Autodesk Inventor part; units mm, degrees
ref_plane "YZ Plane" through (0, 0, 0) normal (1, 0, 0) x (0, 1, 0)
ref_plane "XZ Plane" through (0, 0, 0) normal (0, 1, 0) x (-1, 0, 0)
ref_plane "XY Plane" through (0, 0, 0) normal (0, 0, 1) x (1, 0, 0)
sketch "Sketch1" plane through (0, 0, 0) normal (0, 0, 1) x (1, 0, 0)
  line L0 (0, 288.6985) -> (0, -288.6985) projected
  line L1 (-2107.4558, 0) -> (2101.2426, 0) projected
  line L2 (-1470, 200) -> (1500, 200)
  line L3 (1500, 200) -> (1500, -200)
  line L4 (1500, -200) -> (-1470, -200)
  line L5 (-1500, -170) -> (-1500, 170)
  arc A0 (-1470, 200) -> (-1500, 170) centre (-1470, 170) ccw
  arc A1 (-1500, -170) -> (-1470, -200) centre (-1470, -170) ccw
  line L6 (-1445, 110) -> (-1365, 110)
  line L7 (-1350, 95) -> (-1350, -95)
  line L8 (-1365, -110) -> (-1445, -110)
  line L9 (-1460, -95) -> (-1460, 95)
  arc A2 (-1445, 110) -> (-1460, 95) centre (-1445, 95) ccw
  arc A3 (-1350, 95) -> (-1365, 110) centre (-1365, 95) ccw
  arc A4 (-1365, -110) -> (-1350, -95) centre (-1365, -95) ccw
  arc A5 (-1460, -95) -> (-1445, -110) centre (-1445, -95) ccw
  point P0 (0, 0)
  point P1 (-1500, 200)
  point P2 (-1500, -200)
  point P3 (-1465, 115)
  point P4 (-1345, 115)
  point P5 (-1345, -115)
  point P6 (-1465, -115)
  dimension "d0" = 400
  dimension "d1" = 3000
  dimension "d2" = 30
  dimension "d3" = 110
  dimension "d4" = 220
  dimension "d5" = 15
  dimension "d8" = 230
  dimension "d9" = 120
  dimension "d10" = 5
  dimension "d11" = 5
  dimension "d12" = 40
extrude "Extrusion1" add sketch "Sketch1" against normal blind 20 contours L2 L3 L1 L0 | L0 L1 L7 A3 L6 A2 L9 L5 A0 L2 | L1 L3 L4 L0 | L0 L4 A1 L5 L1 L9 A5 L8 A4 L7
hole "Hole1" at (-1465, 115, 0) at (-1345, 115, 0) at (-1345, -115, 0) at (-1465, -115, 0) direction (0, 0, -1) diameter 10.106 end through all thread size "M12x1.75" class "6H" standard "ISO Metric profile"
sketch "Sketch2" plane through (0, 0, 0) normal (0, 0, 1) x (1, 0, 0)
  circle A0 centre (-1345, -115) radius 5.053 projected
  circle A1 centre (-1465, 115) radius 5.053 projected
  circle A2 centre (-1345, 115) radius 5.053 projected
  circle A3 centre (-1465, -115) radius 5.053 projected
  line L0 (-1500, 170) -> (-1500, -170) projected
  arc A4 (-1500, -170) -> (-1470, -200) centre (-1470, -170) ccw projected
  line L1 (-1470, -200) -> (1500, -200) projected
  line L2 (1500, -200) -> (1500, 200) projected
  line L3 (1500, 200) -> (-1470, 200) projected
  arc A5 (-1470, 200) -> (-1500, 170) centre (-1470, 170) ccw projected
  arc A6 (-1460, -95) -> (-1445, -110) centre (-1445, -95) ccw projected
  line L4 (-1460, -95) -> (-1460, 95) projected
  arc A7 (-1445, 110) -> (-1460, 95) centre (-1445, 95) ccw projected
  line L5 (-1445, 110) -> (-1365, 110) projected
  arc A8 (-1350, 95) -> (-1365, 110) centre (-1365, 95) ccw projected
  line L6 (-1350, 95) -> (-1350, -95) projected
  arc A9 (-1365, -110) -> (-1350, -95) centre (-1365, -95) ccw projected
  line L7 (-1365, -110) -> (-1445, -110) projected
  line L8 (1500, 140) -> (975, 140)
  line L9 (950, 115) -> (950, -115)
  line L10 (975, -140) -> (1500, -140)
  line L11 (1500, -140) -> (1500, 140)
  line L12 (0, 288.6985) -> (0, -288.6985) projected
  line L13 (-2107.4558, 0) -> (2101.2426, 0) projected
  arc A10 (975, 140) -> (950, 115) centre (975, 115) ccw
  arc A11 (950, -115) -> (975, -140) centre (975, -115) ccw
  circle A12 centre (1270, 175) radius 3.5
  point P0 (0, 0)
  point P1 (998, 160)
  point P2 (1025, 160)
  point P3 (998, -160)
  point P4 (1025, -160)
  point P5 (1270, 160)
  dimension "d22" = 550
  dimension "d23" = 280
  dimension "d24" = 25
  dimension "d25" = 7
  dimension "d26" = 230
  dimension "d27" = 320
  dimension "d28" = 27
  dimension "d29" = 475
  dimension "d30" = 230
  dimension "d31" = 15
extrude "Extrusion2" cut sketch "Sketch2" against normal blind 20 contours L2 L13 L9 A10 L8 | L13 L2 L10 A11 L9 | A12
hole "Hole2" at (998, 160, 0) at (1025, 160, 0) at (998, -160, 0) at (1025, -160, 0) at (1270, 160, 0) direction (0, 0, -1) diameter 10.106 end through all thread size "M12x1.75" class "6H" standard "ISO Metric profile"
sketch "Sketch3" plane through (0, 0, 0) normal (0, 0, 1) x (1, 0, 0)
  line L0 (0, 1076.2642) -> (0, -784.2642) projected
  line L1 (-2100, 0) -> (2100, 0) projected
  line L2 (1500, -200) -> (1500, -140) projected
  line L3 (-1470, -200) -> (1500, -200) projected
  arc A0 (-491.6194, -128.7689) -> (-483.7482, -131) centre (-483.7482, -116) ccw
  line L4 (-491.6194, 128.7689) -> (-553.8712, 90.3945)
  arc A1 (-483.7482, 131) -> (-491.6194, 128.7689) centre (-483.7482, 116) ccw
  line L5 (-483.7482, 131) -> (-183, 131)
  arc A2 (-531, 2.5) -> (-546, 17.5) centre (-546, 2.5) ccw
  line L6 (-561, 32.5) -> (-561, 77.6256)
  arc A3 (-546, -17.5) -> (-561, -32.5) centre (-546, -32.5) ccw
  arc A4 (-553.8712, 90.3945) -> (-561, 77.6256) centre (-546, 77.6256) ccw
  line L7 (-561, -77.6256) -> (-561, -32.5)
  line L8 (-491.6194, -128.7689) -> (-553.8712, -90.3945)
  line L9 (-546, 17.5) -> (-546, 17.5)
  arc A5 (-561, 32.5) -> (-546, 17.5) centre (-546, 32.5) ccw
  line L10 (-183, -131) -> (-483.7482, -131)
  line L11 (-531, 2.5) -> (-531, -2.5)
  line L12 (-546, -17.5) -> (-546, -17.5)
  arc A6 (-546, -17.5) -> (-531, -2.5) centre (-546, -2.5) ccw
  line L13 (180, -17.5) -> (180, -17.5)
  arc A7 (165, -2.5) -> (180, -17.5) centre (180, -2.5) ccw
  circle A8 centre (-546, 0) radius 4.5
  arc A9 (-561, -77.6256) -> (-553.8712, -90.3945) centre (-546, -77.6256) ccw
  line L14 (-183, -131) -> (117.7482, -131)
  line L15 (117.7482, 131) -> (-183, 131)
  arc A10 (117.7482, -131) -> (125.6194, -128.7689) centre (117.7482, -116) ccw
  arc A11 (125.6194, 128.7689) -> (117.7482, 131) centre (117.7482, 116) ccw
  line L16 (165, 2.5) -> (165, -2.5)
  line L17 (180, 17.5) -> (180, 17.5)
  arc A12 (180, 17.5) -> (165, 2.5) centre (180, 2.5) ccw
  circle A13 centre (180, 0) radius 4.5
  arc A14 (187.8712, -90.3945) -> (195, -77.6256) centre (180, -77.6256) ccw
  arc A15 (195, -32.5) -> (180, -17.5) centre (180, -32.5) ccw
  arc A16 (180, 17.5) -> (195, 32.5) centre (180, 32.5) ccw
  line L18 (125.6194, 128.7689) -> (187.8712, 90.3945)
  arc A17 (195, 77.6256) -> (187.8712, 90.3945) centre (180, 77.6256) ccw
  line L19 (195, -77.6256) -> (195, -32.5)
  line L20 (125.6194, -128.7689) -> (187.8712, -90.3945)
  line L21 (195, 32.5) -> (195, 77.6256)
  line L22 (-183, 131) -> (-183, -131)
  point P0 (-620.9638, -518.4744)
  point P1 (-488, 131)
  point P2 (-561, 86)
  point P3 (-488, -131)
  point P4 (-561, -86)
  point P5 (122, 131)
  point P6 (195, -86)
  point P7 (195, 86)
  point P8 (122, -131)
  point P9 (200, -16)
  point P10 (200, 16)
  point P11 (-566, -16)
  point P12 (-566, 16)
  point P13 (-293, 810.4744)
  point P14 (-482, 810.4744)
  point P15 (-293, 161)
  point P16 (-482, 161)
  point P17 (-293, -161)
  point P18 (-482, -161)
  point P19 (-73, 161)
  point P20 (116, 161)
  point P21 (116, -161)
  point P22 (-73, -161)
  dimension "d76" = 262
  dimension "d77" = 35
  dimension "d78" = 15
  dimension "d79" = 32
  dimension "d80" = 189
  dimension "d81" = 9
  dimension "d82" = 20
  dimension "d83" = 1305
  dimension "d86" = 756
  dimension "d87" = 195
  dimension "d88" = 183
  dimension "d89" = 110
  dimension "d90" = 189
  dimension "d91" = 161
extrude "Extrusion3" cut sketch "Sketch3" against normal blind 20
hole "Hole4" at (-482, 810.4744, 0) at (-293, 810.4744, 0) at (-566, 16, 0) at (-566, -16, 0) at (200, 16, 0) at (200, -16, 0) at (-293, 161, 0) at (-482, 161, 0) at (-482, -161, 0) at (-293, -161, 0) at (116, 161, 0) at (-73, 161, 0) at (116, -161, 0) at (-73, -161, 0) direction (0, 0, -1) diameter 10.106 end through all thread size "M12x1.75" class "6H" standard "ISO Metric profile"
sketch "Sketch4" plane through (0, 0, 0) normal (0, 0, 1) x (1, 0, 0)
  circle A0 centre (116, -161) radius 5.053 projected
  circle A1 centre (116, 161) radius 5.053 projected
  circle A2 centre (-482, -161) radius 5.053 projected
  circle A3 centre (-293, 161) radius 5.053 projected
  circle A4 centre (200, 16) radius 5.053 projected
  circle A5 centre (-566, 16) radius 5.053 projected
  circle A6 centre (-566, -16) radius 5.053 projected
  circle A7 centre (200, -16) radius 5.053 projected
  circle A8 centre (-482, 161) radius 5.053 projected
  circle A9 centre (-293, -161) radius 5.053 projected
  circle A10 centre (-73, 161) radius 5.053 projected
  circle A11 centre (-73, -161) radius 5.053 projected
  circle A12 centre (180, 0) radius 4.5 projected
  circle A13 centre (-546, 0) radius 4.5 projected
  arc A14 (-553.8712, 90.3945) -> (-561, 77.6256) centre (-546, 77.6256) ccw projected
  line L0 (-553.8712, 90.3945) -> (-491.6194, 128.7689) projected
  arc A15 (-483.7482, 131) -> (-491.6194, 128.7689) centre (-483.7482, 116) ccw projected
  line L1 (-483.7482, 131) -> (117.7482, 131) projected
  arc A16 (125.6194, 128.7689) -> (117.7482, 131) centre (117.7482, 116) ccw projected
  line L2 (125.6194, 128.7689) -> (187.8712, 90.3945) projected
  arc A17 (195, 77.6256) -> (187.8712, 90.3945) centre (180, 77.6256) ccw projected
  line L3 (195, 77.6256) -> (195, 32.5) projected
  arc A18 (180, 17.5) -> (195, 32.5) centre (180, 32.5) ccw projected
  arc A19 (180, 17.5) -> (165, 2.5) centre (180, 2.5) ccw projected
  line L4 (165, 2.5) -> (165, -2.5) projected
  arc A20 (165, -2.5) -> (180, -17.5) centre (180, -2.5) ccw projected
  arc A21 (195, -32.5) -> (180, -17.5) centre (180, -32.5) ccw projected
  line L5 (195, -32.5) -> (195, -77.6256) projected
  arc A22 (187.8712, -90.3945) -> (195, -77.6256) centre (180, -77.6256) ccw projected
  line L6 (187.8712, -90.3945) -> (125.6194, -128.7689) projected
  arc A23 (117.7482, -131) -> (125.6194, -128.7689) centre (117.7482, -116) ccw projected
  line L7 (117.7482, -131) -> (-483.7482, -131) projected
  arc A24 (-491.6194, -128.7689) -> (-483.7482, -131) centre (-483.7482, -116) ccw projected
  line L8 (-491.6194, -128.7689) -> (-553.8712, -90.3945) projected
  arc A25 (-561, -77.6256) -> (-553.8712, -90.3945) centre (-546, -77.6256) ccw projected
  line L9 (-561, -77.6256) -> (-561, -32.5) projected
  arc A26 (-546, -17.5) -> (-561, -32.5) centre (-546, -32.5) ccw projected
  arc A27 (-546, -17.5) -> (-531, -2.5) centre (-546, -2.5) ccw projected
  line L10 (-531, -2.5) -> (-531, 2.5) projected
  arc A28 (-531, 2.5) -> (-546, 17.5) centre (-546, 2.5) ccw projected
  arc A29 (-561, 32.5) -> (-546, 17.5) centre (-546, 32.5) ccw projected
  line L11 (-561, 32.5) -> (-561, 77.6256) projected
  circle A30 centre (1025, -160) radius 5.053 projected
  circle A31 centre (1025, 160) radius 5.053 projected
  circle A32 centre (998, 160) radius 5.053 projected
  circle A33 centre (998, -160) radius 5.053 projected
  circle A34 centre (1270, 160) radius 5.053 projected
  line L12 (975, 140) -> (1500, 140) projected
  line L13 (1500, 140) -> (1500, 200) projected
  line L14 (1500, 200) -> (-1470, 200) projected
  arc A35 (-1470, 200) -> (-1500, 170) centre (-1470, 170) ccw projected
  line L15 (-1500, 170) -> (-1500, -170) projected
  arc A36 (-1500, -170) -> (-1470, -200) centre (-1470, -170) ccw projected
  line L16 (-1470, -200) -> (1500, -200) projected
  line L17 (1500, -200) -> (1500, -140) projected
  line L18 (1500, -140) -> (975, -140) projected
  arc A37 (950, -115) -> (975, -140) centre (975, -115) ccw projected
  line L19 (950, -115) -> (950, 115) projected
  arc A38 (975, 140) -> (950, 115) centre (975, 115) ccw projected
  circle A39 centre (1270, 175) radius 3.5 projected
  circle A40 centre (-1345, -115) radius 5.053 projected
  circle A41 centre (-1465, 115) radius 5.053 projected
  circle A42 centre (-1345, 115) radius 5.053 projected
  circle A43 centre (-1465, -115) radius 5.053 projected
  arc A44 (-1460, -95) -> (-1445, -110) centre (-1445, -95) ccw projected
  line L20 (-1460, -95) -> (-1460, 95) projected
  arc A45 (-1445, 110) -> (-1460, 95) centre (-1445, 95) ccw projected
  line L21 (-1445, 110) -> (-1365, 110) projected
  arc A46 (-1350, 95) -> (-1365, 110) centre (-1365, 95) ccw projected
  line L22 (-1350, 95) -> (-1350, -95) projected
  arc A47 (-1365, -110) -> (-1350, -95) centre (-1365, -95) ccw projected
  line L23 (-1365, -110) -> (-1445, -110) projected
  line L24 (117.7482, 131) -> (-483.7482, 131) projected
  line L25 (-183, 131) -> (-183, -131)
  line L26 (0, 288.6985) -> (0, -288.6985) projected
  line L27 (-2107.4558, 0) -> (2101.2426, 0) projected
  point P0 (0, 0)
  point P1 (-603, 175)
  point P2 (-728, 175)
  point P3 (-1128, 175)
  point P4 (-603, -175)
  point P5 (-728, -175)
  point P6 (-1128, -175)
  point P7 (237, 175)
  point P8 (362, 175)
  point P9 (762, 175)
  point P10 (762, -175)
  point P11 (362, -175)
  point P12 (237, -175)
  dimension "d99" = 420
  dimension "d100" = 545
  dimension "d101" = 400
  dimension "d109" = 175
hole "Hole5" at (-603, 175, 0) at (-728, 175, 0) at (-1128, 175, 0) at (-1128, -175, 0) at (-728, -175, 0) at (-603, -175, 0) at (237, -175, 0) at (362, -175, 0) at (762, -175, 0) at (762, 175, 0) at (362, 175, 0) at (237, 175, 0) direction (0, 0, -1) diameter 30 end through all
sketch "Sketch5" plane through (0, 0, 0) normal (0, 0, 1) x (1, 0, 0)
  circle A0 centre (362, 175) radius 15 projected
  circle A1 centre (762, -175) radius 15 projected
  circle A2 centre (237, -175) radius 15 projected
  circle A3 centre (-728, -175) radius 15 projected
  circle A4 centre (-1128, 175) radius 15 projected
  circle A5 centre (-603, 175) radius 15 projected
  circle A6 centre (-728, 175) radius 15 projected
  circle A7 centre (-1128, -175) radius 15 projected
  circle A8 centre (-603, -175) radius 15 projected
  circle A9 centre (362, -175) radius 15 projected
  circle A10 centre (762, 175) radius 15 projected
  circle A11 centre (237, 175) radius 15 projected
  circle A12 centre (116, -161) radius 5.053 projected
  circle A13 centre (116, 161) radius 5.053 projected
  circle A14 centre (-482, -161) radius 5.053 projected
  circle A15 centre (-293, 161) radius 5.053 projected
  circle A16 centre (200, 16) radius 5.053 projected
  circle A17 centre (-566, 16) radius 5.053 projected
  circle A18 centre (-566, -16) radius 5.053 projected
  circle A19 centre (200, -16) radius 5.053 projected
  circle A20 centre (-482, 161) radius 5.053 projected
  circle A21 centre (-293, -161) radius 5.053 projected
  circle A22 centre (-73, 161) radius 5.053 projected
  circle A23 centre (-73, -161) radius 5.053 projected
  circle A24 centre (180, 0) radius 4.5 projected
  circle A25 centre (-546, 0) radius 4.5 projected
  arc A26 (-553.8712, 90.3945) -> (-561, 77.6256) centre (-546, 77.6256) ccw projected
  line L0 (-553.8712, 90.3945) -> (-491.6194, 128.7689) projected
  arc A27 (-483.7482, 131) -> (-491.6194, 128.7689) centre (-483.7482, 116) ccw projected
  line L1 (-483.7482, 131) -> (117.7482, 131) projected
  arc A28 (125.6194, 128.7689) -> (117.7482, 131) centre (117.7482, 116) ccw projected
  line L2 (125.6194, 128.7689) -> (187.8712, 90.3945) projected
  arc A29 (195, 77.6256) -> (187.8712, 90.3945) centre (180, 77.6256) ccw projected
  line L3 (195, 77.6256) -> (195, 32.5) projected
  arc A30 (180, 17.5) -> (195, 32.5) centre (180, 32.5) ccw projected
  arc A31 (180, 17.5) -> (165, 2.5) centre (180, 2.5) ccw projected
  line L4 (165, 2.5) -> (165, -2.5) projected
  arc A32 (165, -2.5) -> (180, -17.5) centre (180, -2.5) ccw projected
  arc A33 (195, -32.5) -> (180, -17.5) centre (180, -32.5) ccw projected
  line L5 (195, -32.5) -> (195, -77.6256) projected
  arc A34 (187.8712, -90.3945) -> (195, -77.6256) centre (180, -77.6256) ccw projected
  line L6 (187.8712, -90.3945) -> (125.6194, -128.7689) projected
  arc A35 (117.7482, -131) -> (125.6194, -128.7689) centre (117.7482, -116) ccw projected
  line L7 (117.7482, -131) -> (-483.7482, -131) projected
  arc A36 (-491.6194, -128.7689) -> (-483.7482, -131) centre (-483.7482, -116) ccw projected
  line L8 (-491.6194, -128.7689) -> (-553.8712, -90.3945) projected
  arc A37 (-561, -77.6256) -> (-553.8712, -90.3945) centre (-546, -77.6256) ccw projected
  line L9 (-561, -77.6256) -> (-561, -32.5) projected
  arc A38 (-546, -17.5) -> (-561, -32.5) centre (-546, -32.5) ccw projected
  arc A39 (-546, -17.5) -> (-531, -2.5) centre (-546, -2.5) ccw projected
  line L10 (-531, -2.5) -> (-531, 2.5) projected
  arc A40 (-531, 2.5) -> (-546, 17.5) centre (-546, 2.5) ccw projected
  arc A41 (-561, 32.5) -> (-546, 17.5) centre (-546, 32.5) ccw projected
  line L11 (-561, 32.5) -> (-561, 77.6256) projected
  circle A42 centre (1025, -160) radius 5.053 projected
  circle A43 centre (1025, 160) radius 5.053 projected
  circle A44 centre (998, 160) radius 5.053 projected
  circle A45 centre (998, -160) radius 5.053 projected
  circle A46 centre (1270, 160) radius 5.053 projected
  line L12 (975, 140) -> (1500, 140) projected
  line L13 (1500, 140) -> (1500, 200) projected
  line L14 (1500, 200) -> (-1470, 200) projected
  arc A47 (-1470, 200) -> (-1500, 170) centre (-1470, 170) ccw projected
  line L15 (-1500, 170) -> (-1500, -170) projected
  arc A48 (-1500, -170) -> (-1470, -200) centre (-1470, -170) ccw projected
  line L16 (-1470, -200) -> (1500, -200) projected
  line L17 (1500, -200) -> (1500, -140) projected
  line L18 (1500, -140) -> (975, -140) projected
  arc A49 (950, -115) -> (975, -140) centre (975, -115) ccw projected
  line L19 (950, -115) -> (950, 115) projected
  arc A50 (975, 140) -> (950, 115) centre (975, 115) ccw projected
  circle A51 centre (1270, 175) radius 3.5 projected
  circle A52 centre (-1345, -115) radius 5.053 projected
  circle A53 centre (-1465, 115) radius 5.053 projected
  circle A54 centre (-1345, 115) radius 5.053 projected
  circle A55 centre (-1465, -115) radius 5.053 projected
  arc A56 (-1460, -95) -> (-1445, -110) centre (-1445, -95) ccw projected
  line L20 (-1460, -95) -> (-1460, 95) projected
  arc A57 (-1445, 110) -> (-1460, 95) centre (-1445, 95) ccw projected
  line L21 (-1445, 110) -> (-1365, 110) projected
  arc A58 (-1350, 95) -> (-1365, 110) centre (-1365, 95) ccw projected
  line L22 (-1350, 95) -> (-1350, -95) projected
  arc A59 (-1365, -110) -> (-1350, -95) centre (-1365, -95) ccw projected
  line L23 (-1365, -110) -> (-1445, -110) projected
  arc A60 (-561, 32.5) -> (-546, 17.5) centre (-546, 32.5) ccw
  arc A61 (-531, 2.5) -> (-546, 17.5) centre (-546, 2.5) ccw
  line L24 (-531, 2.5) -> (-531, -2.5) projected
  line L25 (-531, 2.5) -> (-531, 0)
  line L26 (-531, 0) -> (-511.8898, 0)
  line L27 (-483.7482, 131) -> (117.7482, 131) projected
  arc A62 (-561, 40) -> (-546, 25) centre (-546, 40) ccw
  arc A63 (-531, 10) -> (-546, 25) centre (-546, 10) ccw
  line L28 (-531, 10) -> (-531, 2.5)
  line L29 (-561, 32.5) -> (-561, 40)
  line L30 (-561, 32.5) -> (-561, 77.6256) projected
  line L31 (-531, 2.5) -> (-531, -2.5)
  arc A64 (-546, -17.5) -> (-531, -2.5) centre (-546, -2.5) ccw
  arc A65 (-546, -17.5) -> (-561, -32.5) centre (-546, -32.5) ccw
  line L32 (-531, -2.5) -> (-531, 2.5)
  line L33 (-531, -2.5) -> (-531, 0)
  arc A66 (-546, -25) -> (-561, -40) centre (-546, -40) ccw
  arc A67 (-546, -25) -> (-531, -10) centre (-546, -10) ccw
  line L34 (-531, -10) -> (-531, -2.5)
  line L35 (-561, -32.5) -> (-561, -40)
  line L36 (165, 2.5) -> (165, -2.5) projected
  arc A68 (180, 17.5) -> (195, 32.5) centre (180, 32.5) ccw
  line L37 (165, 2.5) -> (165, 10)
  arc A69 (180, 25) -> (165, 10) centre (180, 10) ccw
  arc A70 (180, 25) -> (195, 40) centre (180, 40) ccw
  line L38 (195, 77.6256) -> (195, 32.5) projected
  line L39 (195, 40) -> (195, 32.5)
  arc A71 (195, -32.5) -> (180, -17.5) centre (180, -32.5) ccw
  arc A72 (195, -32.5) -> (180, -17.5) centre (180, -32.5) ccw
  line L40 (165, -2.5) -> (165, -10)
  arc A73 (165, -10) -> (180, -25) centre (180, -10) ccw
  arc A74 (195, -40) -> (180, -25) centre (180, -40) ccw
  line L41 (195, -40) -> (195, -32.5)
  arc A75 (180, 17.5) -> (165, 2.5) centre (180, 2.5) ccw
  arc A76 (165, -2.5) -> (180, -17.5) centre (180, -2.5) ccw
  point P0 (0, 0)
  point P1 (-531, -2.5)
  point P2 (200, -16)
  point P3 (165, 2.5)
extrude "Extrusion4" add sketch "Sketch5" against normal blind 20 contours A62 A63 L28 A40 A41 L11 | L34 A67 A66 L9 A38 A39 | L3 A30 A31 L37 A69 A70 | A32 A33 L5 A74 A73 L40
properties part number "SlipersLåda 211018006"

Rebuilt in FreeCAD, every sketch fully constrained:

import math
import FreeCAD as App
import Part
import Sketcher

doc = App.newDocument("Part")
params = doc.addObject("Spreadsheet::Sheet", "Params")
for row, (alias, value) in enumerate([
    ("sketch1_radius", "30 mm"),
    ("sketch1_radius2", "15 mm"),
    ("sketch1_height", "400 mm"),
    ("sketch1_width", "2970 mm"),
    ("pad1_length", "20 mm"),
    ("hole_diameter", "10.106 mm"),
    ("sketch3_diameter", "7 mm"),
    ("sketch3_radius", "25 mm"),
    ("sketch3_height", "230 mm"),
    ("pocket1_length", "20 mm"),
    ("hole2_diameter", "10.106 mm"),
    ("sketch5_diameter", "9 mm"),
    ("sketch5_radius", "15 mm"),
    ("pocket2_length", "20 mm"),
    ("hole3_diameter", "10.106 mm"),
    ("sketch7_diameter", "30 mm"),
    ("hole4_diameter", "30 mm"),
    ("sketch8_radius", "15 mm"),
    ("sketch8_height", "7.5 mm"),
    ("pad2_length", "20 mm"),
], start=1):
    params.set(f"A{row}", alias)
    params.set(f"B{row}", "=" + value)
    params.setAlias(f"B{row}", alias)

body = doc.addObject("PartDesign::Body", "Body")

# Sketch on XY plane
sketch1 = doc.addObject("Sketcher::SketchObject", "Sketch")
body.addObject(sketch1)
sketch1.AttachmentSupport = (doc.XY_Plane, [""])
sketch1.MapMode = "FlatFace"
sketch1.addGeometry([
    Part.LineSegment(App.Vector(1500, 200, 0), App.Vector(-1470, 200, 0)),  # 0
    Part.ArcOfCircle(Part.Circle(App.Vector(-1470, 170, 0), App.Vector(0, 0, 1), 30), math.radians(90), math.radians(180)),  # 1
    Part.LineSegment(App.Vector(-1500, 170, 0), App.Vector(-1500, -170, 0)),  # 2
    Part.ArcOfCircle(Part.Circle(App.Vector(-1470, -170, 0), App.Vector(0, 0, 1), 30), math.radians(180), math.radians(270)),  # 3
    Part.LineSegment(App.Vector(-1470, -200, 0), App.Vector(1500, -200, 0)),  # 4
    Part.LineSegment(App.Vector(1500, -200, 0), App.Vector(1500, 200, 0)),  # 5
    Part.LineSegment(App.Vector(-1350, 95, 0), App.Vector(-1350, -95, 0)),  # 6
    Part.ArcOfCircle(Part.Circle(App.Vector(-1365, -95, 0), App.Vector(0, 0, 1), 15), math.radians(-90), math.radians(0)),  # 7
    Part.LineSegment(App.Vector(-1365, -110, 0), App.Vector(-1445, -110, 0)),  # 8
    Part.ArcOfCircle(Part.Circle(App.Vector(-1445, -95, 0), App.Vector(0, 0, 1), 15), math.radians(180), math.radians(270)),  # 9
    Part.LineSegment(App.Vector(-1460, -95, 0), App.Vector(-1460, 95, 0)),  # 10
    Part.ArcOfCircle(Part.Circle(App.Vector(-1445, 95, 0), App.Vector(0, 0, 1), 15), math.radians(90), math.radians(180)),  # 11
    Part.LineSegment(App.Vector(-1445, 110, 0), App.Vector(-1365, 110, 0)),  # 12
    Part.ArcOfCircle(Part.Circle(App.Vector(-1365, 95, 0), App.Vector(0, 0, 1), 15), math.radians(0), math.radians(90)),  # 13
], False)
sketch1.addConstraint([
    Sketcher.Constraint("Tangent", 0, 2, 1, 1),
    Sketcher.Constraint("Tangent", 1, 2, 2, 1),
    Sketcher.Constraint("Tangent", 2, 2, 3, 1),
    Sketcher.Constraint("Tangent", 3, 2, 4, 1),
    Sketcher.Constraint("Coincident", 4, 2, 5, 1),
    Sketcher.Constraint("Coincident", 5, 2, 0, 1),
    Sketcher.Constraint("Tangent", 6, 2, 7, 2),
    Sketcher.Constraint("Tangent", 7, 1, 8, 1),
    Sketcher.Constraint("Tangent", 8, 2, 9, 2),
    Sketcher.Constraint("Tangent", 9, 1, 10, 1),
    Sketcher.Constraint("Tangent", 10, 2, 11, 2),
    Sketcher.Constraint("Tangent", 11, 1, 12, 1),
    Sketcher.Constraint("Tangent", 12, 2, 13, 2),
    Sketcher.Constraint("Tangent", 13, 1, 6, 1),
    Sketcher.Constraint("Horizontal", 0),
    Sketcher.Constraint("Vertical", 2),
    Sketcher.Constraint("Horizontal", 4),
    Sketcher.Constraint("Vertical", 5),
    Sketcher.Constraint("Vertical", 6),
    Sketcher.Constraint("Horizontal", 8),
    Sketcher.Constraint("Vertical", 10),
    Sketcher.Constraint("Horizontal", 12),
    Sketcher.Constraint("Equal", 1, 3),
    Sketcher.Constraint("Equal", 7, 9),
    Sketcher.Constraint("Equal", 9, 11),
    Sketcher.Constraint("Equal", 11, 13),
    Sketcher.Constraint("Radius", 1, 30.0),
    Sketcher.Constraint("Radius", 7, 15.0),
    Sketcher.Constraint("DistanceY", 5, 1, 5, 2, 400.0),
    Sketcher.Constraint("DistanceY", 7, 1, -1, 1, 110.0),
    Sketcher.Constraint("DistanceY", -1, 1, 11, 1, 110.0),
    Sketcher.Constraint("DistanceX", 3, 3, 6, 2, 120.0),
    Sketcher.Constraint("DistanceX", 2, 2, 9, 1, 40.0),
    Sketcher.Constraint("DistanceX", 0, 2, 0, 1, 2970.0),
    Sketcher.Constraint("DistanceX", 1, 3, -1, 1, 1470.0),
    Sketcher.Constraint("DistanceY", -1, 1, 1, 3, 170.0),
])
sketch1.setExpression("Constraints[26]", "Params.sketch1_radius")
sketch1.setExpression("Constraints[27]", "Params.sketch1_radius2")
sketch1.setExpression("Constraints[28]", "Params.sketch1_height")
sketch1.setExpression("Constraints[33]", "Params.sketch1_width")
pad1 = doc.addObject("PartDesign::Pad", "Pad")
body.addObject(pad1)
pad1.Profile = sketch1
pad1.setExpression("Length", "Params.pad1_length")
pad1.Reversed = True

# Sketch on XY plane
sketch2 = doc.addObject("Sketcher::SketchObject", "Sketch001")
body.addObject(sketch2)
sketch2.AttachmentSupport = (doc.XY_Plane, [""])
sketch2.MapMode = "FlatFace"
sketch2.addGeometry([
    Part.Circle(App.Vector(-1465, 115, 0), App.Vector(0, 0, 1), 5),
    Part.Circle(App.Vector(-1345, 115, 0), App.Vector(0, 0, 1), 5),
    Part.Circle(App.Vector(-1345, -115, 0), App.Vector(0, 0, 1), 5),
    Part.Circle(App.Vector(-1465, -115, 0), App.Vector(0, 0, 1), 5),
], False)
sketch2.addConstraint([
    Sketcher.Constraint("Equal", 0, 1),
    Sketcher.Constraint("Equal", 1, 2),
    Sketcher.Constraint("Equal", 2, 3),
    Sketcher.Constraint("Symmetric", 1, 3, 2, 3, -1),
    Sketcher.Constraint("Symmetric", 0, 3, 3, 3, -1),
    Sketcher.Constraint("Horizontal", 0, 3, 1, 3),
    Sketcher.Constraint("Diameter", 0, 10.106),
    Sketcher.Constraint("DistanceX", 0, 3, -1, 1, 1465.0),
    Sketcher.Constraint("DistanceY", -1, 1, 0, 3, 115.0),
    Sketcher.Constraint("DistanceX", 1, 3, -1, 1, 1345.0),
])
doc.recompute()
hole = doc.addObject("PartDesign::Hole", "Hole")
body.addObject(hole)
hole.Profile = sketch2
hole.ThreadType = "None"
hole.setExpression("Diameter", "Params.hole_diameter")
hole.DepthType = "ThroughAll"

# Sketch on XY plane
sketch3 = doc.addObject("Sketcher::SketchObject", "Sketch002")
body.addObject(sketch3)
sketch3.AttachmentSupport = (doc.XY_Plane, [""])
sketch3.MapMode = "FlatFace"
sketch3.addGeometry([
    Part.LineSegment(App.Vector(1500, 140, 0), App.Vector(975, 140, 0)),  # 0
    Part.ArcOfCircle(Part.Circle(App.Vector(975, 115, 0), App.Vector(0, 0, 1), 25), math.radians(90), math.radians(180)),  # 1
    Part.LineSegment(App.Vector(950, 115, 0), App.Vector(950, -115, 0)),  # 2
    Part.ArcOfCircle(Part.Circle(App.Vector(975, -115, 0), App.Vector(0, 0, 1), 25), math.radians(180), math.radians(270)),  # 3
    Part.LineSegment(App.Vector(975, -140, 0), App.Vector(1500, -140, 0)),  # 4
    Part.LineSegment(App.Vector(1500, -140, 0), App.Vector(1500, 140, 0)),  # 5
    Part.Circle(App.Vector(1270, 175, 0), App.Vector(0, 0, 1), 3.5),  # 6
], False)
sketch3.addConstraint([
    Sketcher.Constraint("Tangent", 0, 2, 1, 1),
    Sketcher.Constraint("Tangent", 1, 2, 2, 1),
    Sketcher.Constraint("Tangent", 2, 2, 3, 1),
    Sketcher.Constraint("Tangent", 3, 2, 4, 1),
    Sketcher.Constraint("Coincident", 4, 2, 5, 1),
    Sketcher.Constraint("Coincident", 5, 2, 0, 1),
    Sketcher.Constraint("Horizontal", 0),
    Sketcher.Constraint("Vertical", 2),
    Sketcher.Constraint("Horizontal", 4),
    Sketcher.Constraint("Vertical", 5),
    Sketcher.Constraint("Equal", 1, 3),
    Sketcher.Constraint("Diameter", 6, 7.0),
    Sketcher.Constraint("Radius", 1, 25.0),
    Sketcher.Constraint("DistanceY", 2, 2, 2, 1, 230.0),
    Sketcher.Constraint("DistanceX", 1, 2, 6, 3, 320.0),
    Sketcher.Constraint("DistanceX", 6, 3, 4, 2, 230.0),
    Sketcher.Constraint("DistanceX", -1, 1, 1, 3, 975.0),
    Sketcher.Constraint("DistanceY", -1, 1, 1, 3, 115.0),
    Sketcher.Constraint("DistanceY", -1, 1, 6, 3, 175.0),
])
sketch3.setExpression("Constraints[11]", "Params.sketch3_diameter")
sketch3.setExpression("Constraints[12]", "Params.sketch3_radius")
sketch3.setExpression("Constraints[13]", "Params.sketch3_height")
pocket1 = doc.addObject("PartDesign::Pocket", "Pocket")
body.addObject(pocket1)
pocket1.Profile = sketch3
pocket1.setExpression("Length", "Params.pocket1_length")

# Sketch on XY plane
sketch4 = doc.addObject("Sketcher::SketchObject", "Sketch003")
body.addObject(sketch4)
sketch4.AttachmentSupport = (doc.XY_Plane, [""])
sketch4.MapMode = "FlatFace"
sketch4.addGeometry([
    Part.Circle(App.Vector(998, 160, 0), App.Vector(0, 0, 1), 5),  # 0
    Part.Circle(App.Vector(1025, 160, 0), App.Vector(0, 0, 1), 5),  # 1
    Part.Circle(App.Vector(998, -160, 0), App.Vector(0, 0, 1), 5),  # 2
    Part.Circle(App.Vector(1025, -160, 0), App.Vector(0, 0, 1), 5),  # 3
    Part.Circle(App.Vector(1270, 160, 0), App.Vector(0, 0, 1), 5),  # 4
], False)
sketch4.addConstraint([
    Sketcher.Constraint("Equal", 0, 1),
    Sketcher.Constraint("Equal", 1, 2),
    Sketcher.Constraint("Equal", 2, 3),
    Sketcher.Constraint("Equal", 3, 4),
    Sketcher.Constraint("Symmetric", 0, 3, 2, 3, -1),
    Sketcher.Constraint("Symmetric", 1, 3, 3, 3, -1),
    Sketcher.Constraint("Horizontal", 0, 3, 1, 3),
    Sketcher.Constraint("Horizontal", 1, 3, 4, 3),
    Sketcher.Constraint("Diameter", 0, 10.106),
    Sketcher.Constraint("DistanceX", -1, 1, 0, 3, 998.0),
    Sketcher.Constraint("DistanceY", -1, 1, 0, 3, 160.0),
    Sketcher.Constraint("DistanceX", -1, 1, 1, 3, 1025.0),
    Sketcher.Constraint("DistanceX", -1, 1, 4, 3, 1270.0),
])
doc.recompute()
hole2 = doc.addObject("PartDesign::Hole", "Hole001")
body.addObject(hole2)
hole2.Profile = sketch4
hole2.ThreadType = "None"
hole2.setExpression("Diameter", "Params.hole2_diameter")
hole2.DepthType = "ThroughAll"

# Sketch on XY plane
sketch5 = doc.addObject("Sketcher::SketchObject", "Sketch004")
body.addObject(sketch5)
sketch5.AttachmentSupport = (doc.XY_Plane, [""])
sketch5.MapMode = "FlatFace"
sketch5.addGeometry([
    Part.LineSegment(App.Vector(117.7, 131, 0), App.Vector(-483.7, 131, 0)),  # 0
    Part.ArcOfCircle(Part.Circle(App.Vector(-483.7, 116, 0), App.Vector(0, 0, 1), 15), math.radians(90), math.radians(122)),  # 1
    Part.LineSegment(App.Vector(-491.6, 128.8, 0), App.Vector(-553.9, 90.4, 0)),  # 2
    Part.ArcOfCircle(Part.Circle(App.Vector(-546, 77.6, 0), App.Vector(0, 0, 1), 15), math.radians(122), math.radians(180)),  # 3
    Part.LineSegment(App.Vector(-561, 77.6, 0), App.Vector(-561, 32.5, 0)),  # 4
    Part.ArcOfCircle(Part.Circle(App.Vector(-546, 32.5, 0), App.Vector(0, 0, 1), 15), math.radians(180), math.radians(270)),  # 5
    Part.ArcOfCircle(Part.Circle(App.Vector(-546, 2.5, 0), App.Vector(0, 0, 1), 15), math.radians(0), math.radians(90)),  # 6
    Part.LineSegment(App.Vector(-531, 2.5, 0), App.Vector(-531, -2.5, 0)),  # 7
    Part.ArcOfCircle(Part.Circle(App.Vector(-546, -2.5, 0), App.Vector(0, 0, 1), 15), math.radians(-90), math.radians(0)),  # 8
    Part.ArcOfCircle(Part.Circle(App.Vector(-546, -32.5, 0), App.Vector(0, 0, 1), 15), math.radians(90), math.radians(180)),  # 9
    Part.LineSegment(App.Vector(-561, -32.5, 0), App.Vector(-561, -77.6, 0)),  # 10
    Part.ArcOfCircle(Part.Circle(App.Vector(-546, -77.6, 0), App.Vector(0, 0, 1), 15), math.radians(180), math.radians(238)),  # 11
    Part.LineSegment(App.Vector(-553.9, -90.4, 0), App.Vector(-491.6, -128.8, 0)),  # 12
    Part.ArcOfCircle(Part.Circle(App.Vector(-483.7, -116, 0), App.Vector(0, 0, 1), 15), math.radians(-122), math.radians(-90)),  # 13
    Part.LineSegment(App.Vector(-483.7, -131, 0), App.Vector(117.7, -131, 0)),  # 14
    Part.ArcOfCircle(Part.Circle(App.Vector(117.7, -116, 0), App.Vector(0, 0, 1), 15), math.radians(-90), math.radians(-58)),  # 15
    Part.LineSegment(App.Vector(125.6, -128.8, 0), App.Vector(187.9, -90.4, 0)),  # 16
    Part.ArcOfCircle(Part.Circle(App.Vector(180, -77.6, 0), App.Vector(0, 0, 1), 15), math.radians(-58), math.radians(0)),  # 17
    Part.LineSegment(App.Vector(195, -77.6, 0), App.Vector(195, -32.5, 0)),  # 18
    Part.ArcOfCircle(Part.Circle(App.Vector(180, -32.5, 0), App.Vector(0, 0, 1), 15), math.radians(0), math.radians(90)),  # 19
    Part.ArcOfCircle(Part.Circle(App.Vector(180, -2.5, 0), App.Vector(0, 0, 1), 15), math.radians(180), math.radians(270)),  # 20
    Part.LineSegment(App.Vector(165, -2.5, 0), App.Vector(165, 2.5, 0)),  # 21
    Part.ArcOfCircle(Part.Circle(App.Vector(180, 2.5, 0), App.Vector(0, 0, 1), 15), math.radians(90), math.radians(180)),  # 22
    Part.ArcOfCircle(Part.Circle(App.Vector(180, 32.5, 0), App.Vector(0, 0, 1), 15), math.radians(-90), math.radians(0)),  # 23
    Part.LineSegment(App.Vector(195, 32.5, 0), App.Vector(195, 77.6, 0)),  # 24
    Part.ArcOfCircle(Part.Circle(App.Vector(180, 77.6, 0), App.Vector(0, 0, 1), 15), math.radians(0), math.radians(58)),  # 25
    Part.LineSegment(App.Vector(187.9, 90.4, 0), App.Vector(125.6, 128.8, 0)),  # 26
    Part.ArcOfCircle(Part.Circle(App.Vector(117.7, 116, 0), App.Vector(0, 0, 1), 15), math.radians(58), math.radians(90)),  # 27
    Part.Circle(App.Vector(180, 0, 0), App.Vector(0, 0, 1), 4.5),  # 28
    Part.Circle(App.Vector(-546, 0, 0), App.Vector(0, 0, 1), 4.5),  # 29
], False)
sketch5.addConstraint([
    Sketcher.Constraint("Tangent", 0, 2, 1, 1),
    Sketcher.Constraint("Tangent", 1, 2, 2, 1),
    Sketcher.Constraint("Tangent", 2, 2, 3, 1),
    Sketcher.Constraint("Tangent", 3, 2, 4, 1),
    Sketcher.Constraint("Tangent", 4, 2, 5, 1),
    Sketcher.Constraint("Tangent", 5, 2, 6, 2),
    Sketcher.Constraint("Tangent", 6, 1, 7, 1),
    Sketcher.Constraint("Tangent", 7, 2, 8, 2),
    Sketcher.Constraint("Tangent", 8, 1, 9, 1),
    Sketcher.Constraint("Tangent", 9, 2, 10, 1),
    Sketcher.Constraint("Tangent", 10, 2, 11, 1),
    Sketcher.Constraint("Tangent", 11, 2, 12, 1),
    Sketcher.Constraint("Tangent", 12, 2, 13, 1),
    Sketcher.Constraint("Tangent", 13, 2, 14, 1),
    Sketcher.Constraint("Tangent", 14, 2, 15, 1),
    Sketcher.Constraint("Tangent", 15, 2, 16, 1),
    Sketcher.Constraint("Tangent", 16, 2, 17, 1),
    Sketcher.Constraint("Tangent", 17, 2, 18, 1),
    Sketcher.Constraint("Tangent", 18, 2, 19, 1),
    Sketcher.Constraint("Tangent", 19, 2, 20, 2),
    Sketcher.Constraint("Tangent", 20, 1, 21, 1),
    Sketcher.Constraint("Tangent", 21, 2, 22, 2),
    Sketcher.Constraint("Tangent", 22, 1, 23, 1),
    Sketcher.Constraint("Tangent", 23, 2, 24, 1),
    Sketcher.Constraint("Tangent", 24, 2, 25, 1),
    Sketcher.Constraint("Tangent", 25, 2, 26, 1),
    Sketcher.Constraint("Tangent", 26, 2, 27, 1),
    Sketcher.Constraint("Tangent", 27, 2, 0, 1),
    Sketcher.Constraint("Horizontal", 0),
    Sketcher.Constraint("Vertical", 4),
    Sketcher.Constraint("Vertical", 7),
    Sketcher.Constraint("Vertical", 10),
    Sketcher.Constraint("Horizontal", 14),
    Sketcher.Constraint("Vertical", 18),
    Sketcher.Constraint("Vertical", 21),
    Sketcher.Constraint("Vertical", 24),
    Sketcher.Constraint("Equal", 1, 3),
    Sketcher.Constraint("Equal", 3, 5),
    Sketcher.Constraint("Equal", 5, 6),
    Sketcher.Constraint("Equal", 6, 8),
    Sketcher.Constraint("Equal", 8, 9),
    Sketcher.Constraint("Equal", 9, 11),
    Sketcher.Constraint("Equal", 11, 13),
    Sketcher.Constraint("Equal", 13, 15),
    Sketcher.Constraint("Equal", 15, 17),
    Sketcher.Constraint("Equal", 17, 19),
    Sketcher.Constraint("Equal", 19, 20),
    Sketcher.Constraint("Equal", 20, 22),
    Sketcher.Constraint("Equal", 22, 23),
    Sketcher.Constraint("Equal", 23, 25),
    Sketcher.Constraint("Equal", 25, 27),
    Sketcher.Constraint("Equal", 28, 29),
    Sketcher.Constraint("Symmetric", 5, 3, 9, 3, -1),
    Sketcher.Constraint("Symmetric", 1, 3, 13, 3, -1),
    Sketcher.Constraint("Symmetric", 19, 3, 23, 3, -1),
    Sketcher.Constraint("Symmetric", 16, 2, 25, 2, -1),
    Sketcher.Constraint("PointOnObject", 28, 3, -1),
    Sketcher.Constraint("PointOnObject", 29, 3, -1),
    Sketcher.Constraint("Parallel", 2, 16),
    Sketcher.Constraint("Parallel", 12, 26),
    Sketcher.Constraint("Horizontal", 11, 3, 17, 3),
    Sketcher.Constraint("Horizontal", 9, 3, 19, 3),
    Sketcher.Constraint("Vertical", 5, 3, 6, 3),
    Sketcher.Constraint("Vertical", 19, 3, 20, 3),
    Sketcher.Constraint("Vertical", 25, 3, 28, 3),
    Sketcher.Constraint("Vertical", 11, 3, 29, 3),
    Sketcher.Constraint("Diameter", 28, 9.0),
    Sketcher.Constraint("Radius", 1, 15.0),
    Sketcher.Constraint("DistanceX", -1, 1, 17, 2, 195.0),
    Sketcher.Constraint("DistanceY", 8, 3, 5, 3, 35.0),
    Sketcher.Constraint("DistanceY", -1, 1, 1, 3, 116.0),
    Sketcher.Constraint("DistanceX", 3, 3, -1, 1, 546.0),
    Sketcher.Constraint("DistanceX", 0, 2, 0, 1, 601.4964),
    Sketcher.Constraint("DistanceY", 4, 2, 4, 1, 45.1256),
])
sketch5.setExpression("Constraints[66]", "Params.sketch5_diameter")
sketch5.setExpression("Constraints[67]", "Params.sketch5_radius")
pocket2 = doc.addObject("PartDesign::Pocket", "Pocket001")
body.addObject(pocket2)
pocket2.Profile = sketch5
pocket2.setExpression("Length", "Params.pocket2_length")

# Sketch on XY plane
sketch6 = doc.addObject("Sketcher::SketchObject", "Sketch005")
body.addObject(sketch6)
sketch6.AttachmentSupport = (doc.XY_Plane, [""])
sketch6.MapMode = "FlatFace"
sketch6.addGeometry([
    Part.Circle(App.Vector(-482, 810, 0), App.Vector(0, 0, 1), 5),  # 0
    Part.Circle(App.Vector(-293, 810, 0), App.Vector(0, 0, 1), 5),  # 1
    Part.Circle(App.Vector(-566, 16, 0), App.Vector(0, 0, 1), 5),  # 2
    Part.Circle(App.Vector(-566, -16, 0), App.Vector(0, 0, 1), 5),  # 3
    Part.Circle(App.Vector(200, 16, 0), App.Vector(0, 0, 1), 5),  # 4
    Part.Circle(App.Vector(200, -16, 0), App.Vector(0, 0, 1), 5),  # 5
    Part.Circle(App.Vector(-293, 161, 0), App.Vector(0, 0, 1), 5),  # 6
    Part.Circle(App.Vector(-482, 161, 0), App.Vector(0, 0, 1), 5),  # 7
    Part.Circle(App.Vector(-482, -161, 0), App.Vector(0, 0, 1), 5),  # 8
    Part.Circle(App.Vector(-293, -161, 0), App.Vector(0, 0, 1), 5),  # 9
    Part.Circle(App.Vector(116, 161, 0), App.Vector(0, 0, 1), 5),  # 10
    Part.Circle(App.Vector(-73, 161, 0), App.Vector(0, 0, 1), 5),  # 11
    Part.Circle(App.Vector(116, -161, 0), App.Vector(0, 0, 1), 5),  # 12
    Part.Circle(App.Vector(-73, -161, 0), App.Vector(0, 0, 1), 5),  # 13
], False)
sketch6.addConstraint([
    Sketcher.Constraint("Equal", 0, 1),
    Sketcher.Constraint("Equal", 1, 2),
    Sketcher.Constraint("Equal", 2, 3),
    Sketcher.Constraint("Equal", 3, 4),
    Sketcher.Constraint("Equal", 4, 5),
    Sketcher.Constraint("Equal", 5, 6),
    Sketcher.Constraint("Equal", 6, 7),
    Sketcher.Constraint("Equal", 7, 8),
    Sketcher.Constraint("Equal", 8, 9),
    Sketcher.Constraint("Equal", 9, 10),
    Sketcher.Constraint("Equal", 10, 11),
    Sketcher.Constraint("Equal", 11, 12),
    Sketcher.Constraint("Equal", 12, 13),
    Sketcher.Constraint("Symmetric", 2, 3, 3, 3, -1),
    Sketcher.Constraint("Symmetric", 4, 3, 5, 3, -1),
    Sketcher.Constraint("Symmetric", 7, 3, 8, 3, -1),
    Sketcher.Constraint("Symmetric", 6, 3, 9, 3, -1),
    Sketcher.Constraint("Symmetric", 10, 3, 12, 3, -1),
    Sketcher.Constraint("Symmetric", 11, 3, 13, 3, -1),
    Sketcher.Constraint("Horizontal", 0, 3, 1, 3),
    Sketcher.Constraint("Horizontal", 2, 3, 4, 3),
    Sketcher.Constraint("Horizontal", 6, 3, 7, 3),
    Sketcher.Constraint("Horizontal", 7, 3, 10, 3),
    Sketcher.Constraint("Horizontal", 10, 3, 11, 3),
    Sketcher.Constraint("Vertical", 1, 3, 6, 3),
    Sketcher.Constraint("Vertical", 0, 3, 7, 3),
    Sketcher.Constraint("Diameter", 0, 10.106),
    Sketcher.Constraint("DistanceX", 0, 3, -1, 1, 482.0),
    Sketcher.Constraint("DistanceX", 1, 3, -1, 1, 293.0),
    Sketcher.Constraint("DistanceX", 2, 3, -1, 1, 566.0),
    Sketcher.Constraint("DistanceY", -1, 1, 2, 3, 16.0),
    Sketcher.Constraint("DistanceX", -1, 1, 4, 3, 200.0),
    Sketcher.Constraint("DistanceY", -1, 1, 6, 3, 161.0),
    Sketcher.Constraint("DistanceX", -1, 1, 10, 3, 116.0),
    Sketcher.Constraint("DistanceX", 11, 3, -1, 1, 73.0),
    Sketcher.Constraint("DistanceY", -1, 1, 0, 3, 810.4744),
])
doc.recompute()
hole3 = doc.addObject("PartDesign::Hole", "Hole002")
body.addObject(hole3)
hole3.Profile = sketch6
hole3.ThreadType = "None"
hole3.setExpression("Diameter", "Params.hole3_diameter")
hole3.DepthType = "ThroughAll"

# Sketch on XY plane
sketch7 = doc.addObject("Sketcher::SketchObject", "Sketch006")
body.addObject(sketch7)
sketch7.AttachmentSupport = (doc.XY_Plane, [""])
sketch7.MapMode = "FlatFace"
sketch7.addGeometry([
    Part.Circle(App.Vector(-603, 175, 0), App.Vector(0, 0, 1), 15),  # 0
    Part.Circle(App.Vector(-728, 175, 0), App.Vector(0, 0, 1), 15),  # 1
    Part.Circle(App.Vector(-1128, 175, 0), App.Vector(0, 0, 1), 15),  # 2
    Part.Circle(App.Vector(-1128, -175, 0), App.Vector(0, 0, 1), 15),  # 3
    Part.Circle(App.Vector(-728, -175, 0), App.Vector(0, 0, 1), 15),  # 4
    Part.Circle(App.Vector(-603, -175, 0), App.Vector(0, 0, 1), 15),  # 5
    Part.Circle(App.Vector(237, -175, 0), App.Vector(0, 0, 1), 15),  # 6
    Part.Circle(App.Vector(362, -175, 0), App.Vector(0, 0, 1), 15),  # 7
    Part.Circle(App.Vector(762, -175, 0), App.Vector(0, 0, 1), 15),  # 8
    Part.Circle(App.Vector(762, 175, 0), App.Vector(0, 0, 1), 15),  # 9
    Part.Circle(App.Vector(362, 175, 0), App.Vector(0, 0, 1), 15),  # 10
    Part.Circle(App.Vector(237, 175, 0), App.Vector(0, 0, 1), 15),  # 11
], False)
sketch7.addConstraint([
    Sketcher.Constraint("Equal", 0, 1),
    Sketcher.Constraint("Equal", 1, 2),
    Sketcher.Constraint("Equal", 2, 3),
    Sketcher.Constraint("Equal", 3, 4),
    Sketcher.Constraint("Equal", 4, 5),
    Sketcher.Constraint("Equal", 5, 6),
    Sketcher.Constraint("Equal", 6, 7),
    Sketcher.Constraint("Equal", 7, 8),
    Sketcher.Constraint("Equal", 8, 9),
    Sketcher.Constraint("Equal", 9, 10),
    Sketcher.Constraint("Equal", 10, 11),
    Sketcher.Constraint("Symmetric", 2, 3, 3, 3, -1),
    Sketcher.Constraint("Symmetric", 1, 3, 4, 3, -1),
    Sketcher.Constraint("Symmetric", 0, 3, 5, 3, -1),
    Sketcher.Constraint("Symmetric", 8, 3, 9, 3, -1),
    Sketcher.Constraint("Symmetric", 7, 3, 10, 3, -1),
    Sketcher.Constraint("Symmetric", 6, 3, 11, 3, -1),
    Sketcher.Constraint("Horizontal", 0, 3, 1, 3),
    Sketcher.Constraint("Horizontal", 1, 3, 2, 3),
    Sketcher.Constraint("Horizontal", 5, 3, 6, 3),
    Sketcher.Constraint("Horizontal", 6, 3, 7, 3),
    Sketcher.Constraint("Horizontal", 7, 3, 8, 3),
    Sketcher.Constraint("Diameter", 0, 30.0),
    Sketcher.Constraint("DistanceX", 0, 3, -1, 1, 603.0),
    Sketcher.Constraint("DistanceY", -1, 1, 0, 3, 175.0),
    Sketcher.Constraint("DistanceX", 1, 3, -1, 1, 728.0),
    Sketcher.Constraint("DistanceX", 2, 3, -1, 1, 1128.0),
    Sketcher.Constraint("DistanceX", -1, 1, 6, 3, 237.0),
    Sketcher.Constraint("DistanceX", -1, 1, 7, 3, 362.0),
    Sketcher.Constraint("DistanceX", -1, 1, 8, 3, 762.0),
])
sketch7.setExpression("Constraints[22]", "Params.sketch7_diameter")
doc.recompute()
hole4 = doc.addObject("PartDesign::Hole", "Hole003")
body.addObject(hole4)
hole4.Profile = sketch7
hole4.ThreadType = "None"
hole4.setExpression("Diameter", "Params.hole4_diameter")
hole4.DepthType = "ThroughAll"

# Sketch on XY plane
sketch8 = doc.addObject("Sketcher::SketchObject", "Sketch007")
body.addObject(sketch8)
sketch8.AttachmentSupport = (doc.XY_Plane, [""])
sketch8.MapMode = "FlatFace"
sketch8.addGeometry([
    Part.ArcOfCircle(Part.Circle(App.Vector(-546, 40, 0), App.Vector(0, 0, 1), 15), math.radians(180), math.radians(270)),  # 0
    Part.LineSegment(App.Vector(-561, 40, 0), App.Vector(-561, 32, 0)),  # 1
    Part.ArcOfCircle(Part.Circle(App.Vector(-546, 32, 0), App.Vector(0, 0, 1), 15), math.radians(180), math.radians(270)),  # 2
    Part.ArcOfCircle(Part.Circle(App.Vector(-546, 2, 0), App.Vector(0, 0, 1), 15), math.radians(0), math.radians(90)),  # 3
    Part.LineSegment(App.Vector(-531, 2, 0), App.Vector(-531, 10, 0)),  # 4
    Part.ArcOfCircle(Part.Circle(App.Vector(-546, 10, 0), App.Vector(0, 0, 1), 15), math.radians(0), math.radians(90)),  # 5
    Part.LineSegment(App.Vector(-531, -10, 0), App.Vector(-531, -2, 0)),  # 6
    Part.ArcOfCircle(Part.Circle(App.Vector(-546, -2, 0), App.Vector(0, 0, 1), 15), math.radians(-90), math.radians(0)),  # 7
    Part.ArcOfCircle(Part.Circle(App.Vector(-546, -32, 0), App.Vector(0, 0, 1), 15), math.radians(90), math.radians(180)),  # 8
    Part.LineSegment(App.Vector(-561, -32, 0), App.Vector(-561, -40, 0)),  # 9
    Part.ArcOfCircle(Part.Circle(App.Vector(-546, -40, 0), App.Vector(0, 0, 1), 15), math.radians(90), math.radians(180)),  # 10
    Part.ArcOfCircle(Part.Circle(App.Vector(-546, -10, 0), App.Vector(0, 0, 1), 15), math.radians(-90), math.radians(0)),  # 11
    Part.LineSegment(App.Vector(195, 32, 0), App.Vector(195, 40, 0)),  # 12
    Part.ArcOfCircle(Part.Circle(App.Vector(180, 40, 0), App.Vector(0, 0, 1), 15), math.radians(-90), math.radians(0)),  # 13
    Part.ArcOfCircle(Part.Circle(App.Vector(180, 10, 0), App.Vector(0, 0, 1), 15), math.radians(90), math.radians(180)),  # 14
    Part.LineSegment(App.Vector(165, 10, 0), App.Vector(165, 2, 0)),  # 15
    Part.ArcOfCircle(Part.Circle(App.Vector(180, 2, 0), App.Vector(0, 0, 1), 15), math.radians(90), math.radians(180)),  # 16
    Part.ArcOfCircle(Part.Circle(App.Vector(180, 32, 0), App.Vector(0, 0, 1), 15), math.radians(-90), math.radians(0)),  # 17
    Part.ArcOfCircle(Part.Circle(App.Vector(180, -2, 0), App.Vector(0, 0, 1), 15), math.radians(180), math.radians(270)),  # 18
    Part.LineSegment(App.Vector(165, -2, 0), App.Vector(165, -10, 0)),  # 19
    Part.ArcOfCircle(Part.Circle(App.Vector(180, -10, 0), App.Vector(0, 0, 1), 15), math.radians(180), math.radians(270)),  # 20
    Part.ArcOfCircle(Part.Circle(App.Vector(180, -40, 0), App.Vector(0, 0, 1), 15), math.radians(0), math.radians(90)),  # 21
    Part.LineSegment(App.Vector(195, -40, 0), App.Vector(195, -32, 0)),  # 22
    Part.ArcOfCircle(Part.Circle(App.Vector(180, -32, 0), App.Vector(0, 0, 1), 15), math.radians(0), math.radians(90)),  # 23
], False)
sketch8.addConstraint([
    Sketcher.Constraint("Tangent", 0, 1, 1, 1),
    Sketcher.Constraint("Tangent", 1, 2, 2, 1),
    Sketcher.Constraint("Tangent", 2, 2, 3, 2),
    Sketcher.Constraint("Tangent", 3, 1, 4, 1),
    Sketcher.Constraint("Tangent", 4, 2, 5, 1),
    Sketcher.Constraint("Tangent", 5, 2, 0, 2),
    Sketcher.Constraint("Tangent", 6, 2, 7, 2),
    Sketcher.Constraint("Tangent", 7, 1, 8, 1),
    Sketcher.Constraint("Tangent", 8, 2, 9, 1),
    Sketcher.Constraint("Tangent", 9, 2, 10, 2),
    Sketcher.Constraint("Tangent", 10, 1, 11, 1),
    Sketcher.Constraint("Tangent", 11, 2, 6, 1),
    Sketcher.Constraint("Tangent", 12, 2, 13, 2),
    Sketcher.Constraint("Tangent", 13, 1, 14, 1),
    Sketcher.Constraint("Tangent", 14, 2, 15, 1),
    Sketcher.Constraint("Tangent", 15, 2, 16, 2),
    Sketcher.Constraint("Tangent", 16, 1, 17, 1),
    Sketcher.Constraint("Tangent", 17, 2, 12, 1),
    Sketcher.Constraint("Tangent", 18, 1, 19, 1),
    Sketcher.Constraint("Tangent", 19, 2, 20, 1),
    Sketcher.Constraint("Tangent", 20, 2, 21, 2),
    Sketcher.Constraint("Tangent", 21, 1, 22, 1),
    Sketcher.Constraint("Tangent", 22, 2, 23, 1),
    Sketcher.Constraint("Tangent", 23, 2, 18, 2),
    Sketcher.Constraint("Vertical", 1),
    Sketcher.Constraint("Vertical", 4),
    Sketcher.Constraint("Vertical", 6),
    Sketcher.Constraint("Vertical", 9),
    Sketcher.Constraint("Vertical", 12),
    Sketcher.Constraint("Vertical", 15),
    Sketcher.Constraint("Vertical", 19),
    Sketcher.Constraint("Vertical", 22),
    Sketcher.Constraint("Equal", 0, 2),
    Sketcher.Constraint("Equal", 2, 3),
    Sketcher.Constraint("Equal", 3, 5),
    Sketcher.Constraint("Equal", 5, 7),
    Sketcher.Constraint("Equal", 7, 8),
    Sketcher.Constraint("Equal", 8, 10),
    Sketcher.Constraint("Equal", 10, 11),
    Sketcher.Constraint("Equal", 11, 13),
    Sketcher.Constraint("Equal", 13, 14),
    Sketcher.Constraint("Equal", 14, 16),
    Sketcher.Constraint("Equal", 16, 17),
    Sketcher.Constraint("Equal", 17, 18),
    Sketcher.Constraint("Equal", 18, 20),
    Sketcher.Constraint("Equal", 20, 21),
    Sketcher.Constraint("Equal", 21, 23),
    Sketcher.Constraint("Symmetric", 3, 3, 7, 3, -1),
    Sketcher.Constraint("Symmetric", 0, 3, 10, 3, -1),
    Sketcher.Constraint("Symmetric", 16, 3, 18, 3, -1),
    Sketcher.Constraint("Symmetric", 13, 3, 21, 3, -1),
    Sketcher.Constraint("Horizontal", 0, 3, 13, 3),
    Sketcher.Constraint("Horizontal", 3, 3, 16, 3),
    Sketcher.Constraint("Vertical", 2, 3, 3, 3),
    Sketcher.Constraint("Vertical", 13, 3, 14, 3),
    Sketcher.Constraint("Radius", 0, 15.0),
    Sketcher.Constraint("DistanceY", 1, 2, 1, 1, 7.5),
    Sketcher.Constraint("DistanceX", 0, 3, -1, 1, 546.0),
    Sketcher.Constraint("DistanceY", -1, 1, 0, 3, 40.0),
    Sketcher.Constraint("DistanceX", -1, 1, 13, 3, 180.0),
])
sketch8.setExpression("Constraints[55]", "Params.sketch8_radius")
sketch8.setExpression("Constraints[56]", "Params.sketch8_height")
pad2 = doc.addObject("PartDesign::Pad", "Pad001")
body.addObject(pad2)
pad2.Profile = sketch8
pad2.setExpression("Length", "Params.pad2_length")
pad2.Reversed = True

doc.recompute()
